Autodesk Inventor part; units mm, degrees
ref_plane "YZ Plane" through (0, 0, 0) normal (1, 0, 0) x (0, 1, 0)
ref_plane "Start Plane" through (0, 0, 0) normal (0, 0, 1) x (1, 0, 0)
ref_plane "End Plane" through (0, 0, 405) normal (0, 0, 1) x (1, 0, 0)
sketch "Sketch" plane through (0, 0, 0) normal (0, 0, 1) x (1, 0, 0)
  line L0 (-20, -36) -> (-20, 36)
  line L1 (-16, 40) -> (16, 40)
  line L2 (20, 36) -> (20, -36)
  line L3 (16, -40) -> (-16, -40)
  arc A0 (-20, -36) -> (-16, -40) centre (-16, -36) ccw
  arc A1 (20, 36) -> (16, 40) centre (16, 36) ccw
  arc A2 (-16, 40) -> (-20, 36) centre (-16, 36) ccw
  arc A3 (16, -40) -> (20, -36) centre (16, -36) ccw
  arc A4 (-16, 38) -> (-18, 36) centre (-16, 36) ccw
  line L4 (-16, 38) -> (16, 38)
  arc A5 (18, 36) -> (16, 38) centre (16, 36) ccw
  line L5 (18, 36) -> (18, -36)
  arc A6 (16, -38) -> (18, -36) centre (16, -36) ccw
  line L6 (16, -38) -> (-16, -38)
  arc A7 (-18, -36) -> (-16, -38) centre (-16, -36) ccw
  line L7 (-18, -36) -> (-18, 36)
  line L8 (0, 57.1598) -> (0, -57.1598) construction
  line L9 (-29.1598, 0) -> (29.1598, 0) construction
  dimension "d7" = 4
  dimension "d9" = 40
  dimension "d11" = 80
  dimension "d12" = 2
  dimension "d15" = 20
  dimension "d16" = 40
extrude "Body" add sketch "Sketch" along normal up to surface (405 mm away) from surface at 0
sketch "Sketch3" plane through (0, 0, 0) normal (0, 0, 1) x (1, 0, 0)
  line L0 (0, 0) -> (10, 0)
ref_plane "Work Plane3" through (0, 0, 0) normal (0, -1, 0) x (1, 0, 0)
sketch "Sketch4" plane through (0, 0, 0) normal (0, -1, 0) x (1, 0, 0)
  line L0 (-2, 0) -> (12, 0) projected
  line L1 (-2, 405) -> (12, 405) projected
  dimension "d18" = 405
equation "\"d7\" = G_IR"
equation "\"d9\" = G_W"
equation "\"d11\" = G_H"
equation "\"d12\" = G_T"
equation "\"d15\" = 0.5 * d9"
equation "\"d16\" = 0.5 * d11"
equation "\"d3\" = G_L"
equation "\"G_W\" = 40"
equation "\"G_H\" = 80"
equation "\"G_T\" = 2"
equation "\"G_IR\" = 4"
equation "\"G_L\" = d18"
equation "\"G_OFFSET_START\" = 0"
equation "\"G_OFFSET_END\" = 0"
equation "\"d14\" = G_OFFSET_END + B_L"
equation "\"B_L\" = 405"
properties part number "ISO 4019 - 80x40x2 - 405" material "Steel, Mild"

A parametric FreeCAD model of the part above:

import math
import FreeCAD as App
import Part
import Sketcher
Q = App.Units.Quantity

doc = App.newDocument("Part")
params = doc.addObject("Spreadsheet::Sheet", "Params")
for row, (alias, value) in enumerate([
    ("sketch1_radius", "4 mm"),
    ("sketch1_radius2", "2 mm"),
    ("pad1_length", "405 mm"),
], start=1):
    params.set(f"A{row}", alias)
    params.set(f"B{row}", "=" + value)
    params.setAlias(f"B{row}", alias)

body = doc.addObject("PartDesign::Body", "Body")

# Sketch on XY plane
sketch1 = body.newObject("Sketcher::SketchObject", "Sketch")
sketch1.AttachmentSupport = (doc.getObject("XY_Plane"), [""])
sketch1.MapMode = "FlatFace"
sketch1.addGeometry([
    Part.LineSegment(App.Vector(-20, 36, 0), App.Vector(-20, -36, 0)),  # 0
    Part.ArcOfCircle(Part.Circle(App.Vector(-16, -36, 0), App.Vector(0, 0, 1), 4), math.radians(180), math.radians(270)),  # 1
    Part.LineSegment(App.Vector(-16, -40, 0), App.Vector(16, -40, 0)),  # 2
    Part.ArcOfCircle(Part.Circle(App.Vector(16, -36, 0), App.Vector(0, 0, 1), 4), math.radians(-90), math.radians(0)),  # 3
    Part.LineSegment(App.Vector(20, -36, 0), App.Vector(20, 36, 0)),  # 4
    Part.ArcOfCircle(Part.Circle(App.Vector(16, 36, 0), App.Vector(0, 0, 1), 4), math.radians(0), math.radians(90)),  # 5
    Part.LineSegment(App.Vector(16, 40, 0), App.Vector(-16, 40, 0)),  # 6
    Part.ArcOfCircle(Part.Circle(App.Vector(-16, 36, 0), App.Vector(0, 0, 1), 4), math.radians(90), math.radians(180)),  # 7
    Part.ArcOfCircle(Part.Circle(App.Vector(-16, 36, 0), App.Vector(0, 0, 1), 2), math.radians(90), math.radians(180)),  # 8
    Part.LineSegment(App.Vector(-16, 38, 0), App.Vector(16, 38, 0)),  # 9
    Part.ArcOfCircle(Part.Circle(App.Vector(16, 36, 0), App.Vector(0, 0, 1), 2), math.radians(0), math.radians(90)),  # 10
    Part.LineSegment(App.Vector(18, 36, 0), App.Vector(18, -36, 0)),  # 11
    Part.ArcOfCircle(Part.Circle(App.Vector(16, -36, 0), App.Vector(0, 0, 1), 2), math.radians(-90), math.radians(0)),  # 12
    Part.LineSegment(App.Vector(16, -38, 0), App.Vector(-16, -38, 0)),  # 13
    Part.ArcOfCircle(Part.Circle(App.Vector(-16, -36, 0), App.Vector(0, 0, 1), 2), math.radians(180), math.radians(270)),  # 14
    Part.LineSegment(App.Vector(-18, -36, 0), App.Vector(-18, 36, 0)),  # 15
], False)
sketch1.addConstraint([
    Sketcher.Constraint("Tangent", 0, 2, 1, 1),
    Sketcher.Constraint("Tangent", 1, 2, 2, 1),
    Sketcher.Constraint("Tangent", 2, 2, 3, 1),
    Sketcher.Constraint("Tangent", 3, 2, 4, 1),
    Sketcher.Constraint("Tangent", 4, 2, 5, 1),
    Sketcher.Constraint("Tangent", 5, 2, 6, 1),
    Sketcher.Constraint("Tangent", 6, 2, 7, 1),
    Sketcher.Constraint("Tangent", 7, 2, 0, 1),
    Sketcher.Constraint("Tangent", 8, 1, 9, 1),
    Sketcher.Constraint("Tangent", 9, 2, 10, 2),
    Sketcher.Constraint("Tangent", 10, 1, 11, 1),
    Sketcher.Constraint("Tangent", 11, 2, 12, 2),
    Sketcher.Constraint("Tangent", 12, 1, 13, 1),
    Sketcher.Constraint("Tangent", 13, 2, 14, 2),
    Sketcher.Constraint("Tangent", 14, 1, 15, 1),
    Sketcher.Constraint("Tangent", 15, 2, 8, 2),
    Sketcher.Constraint("Vertical", 0),
    Sketcher.Constraint("Horizontal", 2),
    Sketcher.Constraint("Vertical", 4),
    Sketcher.Constraint("Horizontal", 6),
    Sketcher.Constraint("Horizontal", 9),
    Sketcher.Constraint("Vertical", 11),
    Sketcher.Constraint("Horizontal", 13),
    Sketcher.Constraint("Vertical", 15),
    Sketcher.Constraint("Coincident", 8, 3, 7, 3),
    Sketcher.Constraint("Coincident", 10, 3, 5, 3),
    Sketcher.Constraint("Coincident", 12, 3, 3, 3),
    Sketcher.Constraint("Equal", 1, 3),
    Sketcher.Constraint("Equal", 3, 5),
    Sketcher.Constraint("Equal", 5, 7),
    Sketcher.Constraint("Equal", 12, 14),
    Sketcher.Constraint("Symmetric", 1, 3, 5, 3, -1, 1),
    Sketcher.Constraint("Radius", 1, Q("4 mm")),
    Sketcher.Constraint("Radius", 8, Q("2 mm")),
    Sketcher.Constraint("DistanceX", 0, 2, -1, 1, Q("20 mm")),
    Sketcher.Constraint("DistanceY", 1, 2, -1, 1, Q("40 mm")),
])
sketch1.setExpression("Constraints[32]", "Params.sketch1_radius")
sketch1.setExpression("Constraints[33]", "Params.sketch1_radius2")
pad1 = body.newObject("PartDesign::Pad", "Pad")
pad1.Profile = sketch1
pad1.setExpression("Length", "Params.pad1_length")

doc.recompute()
